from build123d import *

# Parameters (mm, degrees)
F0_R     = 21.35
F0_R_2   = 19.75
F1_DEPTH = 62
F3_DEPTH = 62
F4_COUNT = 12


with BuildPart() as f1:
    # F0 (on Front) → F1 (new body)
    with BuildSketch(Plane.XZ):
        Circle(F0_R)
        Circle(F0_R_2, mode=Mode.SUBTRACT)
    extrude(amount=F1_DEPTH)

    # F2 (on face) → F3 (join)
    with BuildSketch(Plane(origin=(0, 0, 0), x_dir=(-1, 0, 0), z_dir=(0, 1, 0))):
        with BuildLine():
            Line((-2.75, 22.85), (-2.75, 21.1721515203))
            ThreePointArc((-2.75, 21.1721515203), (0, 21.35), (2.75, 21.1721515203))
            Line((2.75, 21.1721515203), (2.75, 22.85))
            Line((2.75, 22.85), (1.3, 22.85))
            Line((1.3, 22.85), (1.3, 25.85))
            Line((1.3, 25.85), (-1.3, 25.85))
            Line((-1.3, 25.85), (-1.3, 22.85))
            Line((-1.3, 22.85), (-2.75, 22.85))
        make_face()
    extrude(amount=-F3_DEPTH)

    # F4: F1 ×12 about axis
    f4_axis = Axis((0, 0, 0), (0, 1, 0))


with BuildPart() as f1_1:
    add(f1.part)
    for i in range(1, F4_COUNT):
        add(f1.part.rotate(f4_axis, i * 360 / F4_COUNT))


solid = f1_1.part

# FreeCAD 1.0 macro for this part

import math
import FreeCAD as App
import Part
import Sketcher
from FreeCAD import Vector

doc = App.newDocument("Part")
body = doc.addObject("PartDesign::Body", "Body")

sketch1 = body.newObject("Sketcher::SketchObject", "Sketch")
sketch1.AttachmentSupport = (doc.getObject("XZ_Plane"), [""])
sketch1.MapMode = "FlatFace"
sketch1.addGeometry([
    Part.Circle(Vector(0, 0, 0), Vector(0, 0, 1), 21),
    Part.Circle(Vector(0, 0, 0), Vector(0, 0, 1), 20),
], False)
sketch1.addConstraint([
    Sketcher.Constraint("Coincident", 0, 3, -1, 1),
    Sketcher.Constraint("Coincident", 1, 3, -1, 1),
    Sketcher.Constraint("Diameter", 0, 42.7),
    Sketcher.Constraint("Diameter", 1, 39.5),
])
pad1 = body.newObject("PartDesign::Pad", "Pad")
pad1.Profile = sketch1
pad1.Length = 62

sketch2 = body.newObject("Sketcher::SketchObject", "Sketch001")
sketch2.AttachmentSupport = (doc.getObject("XZ_Plane"), [""])
sketch2.MapMode = "FlatFace"
sketch2.addGeometry([
    Part.LineSegment(Vector(2.8, 22.9, 0), Vector(2.8, 21.2, 0)),
    Part.ArcOfCircle(Part.Circle(Vector(0, 0, 0), Vector(0, 0, 1), 21.3), math.radians(82.6), math.radians(97.4)),
    Part.LineSegment(Vector(-2.8, 21.2, 0), Vector(-2.8, 22.9, 0)),
    Part.LineSegment(Vector(-2.8, 22.9, 0), Vector(-1.3, 22.9, 0)),
    Part.LineSegment(Vector(-1.3, 22.9, 0), Vector(-1.3, 25.9, 0)),
    Part.LineSegment(Vector(-1.3, 25.9, 0), Vector(1.3, 25.9, 0)),
    Part.LineSegment(Vector(1.3, 25.9, 0), Vector(1.3, 22.9, 0)),
    Part.LineSegment(Vector(1.3, 22.9, 0), Vector(2.8, 22.9, 0)),
], False)
sketch2.addConstraint([
    Sketcher.Constraint("Coincident", 0, 2, 1, 1),
    Sketcher.Constraint("Coincident", 1, 2, 2, 1),
    Sketcher.Constraint("Coincident", 2, 2, 3, 1),
    Sketcher.Constraint("Coincident", 3, 2, 4, 1),
    Sketcher.Constraint("Coincident", 4, 2, 5, 1),
    Sketcher.Constraint("Coincident", 5, 2, 6, 1),
    Sketcher.Constraint("Coincident", 6, 2, 7, 1),
    Sketcher.Constraint("Coincident", 7, 2, 0, 1),
    Sketcher.Constraint("Vertical", 0),
    Sketcher.Constraint("Vertical", 2),
    Sketcher.Constraint("Horizontal", 3),
    Sketcher.Constraint("Vertical", 4),
    Sketcher.Constraint("Horizontal", 5),
    Sketcher.Constraint("Vertical", 6),
    Sketcher.Constraint("Horizontal", 7),
    Sketcher.Constraint("Coincident", 1, 3, -1, 1),
    Sketcher.Constraint("Symmetric", 3, 2, 6, 2, -2),
    Sketcher.Constraint("Horizontal", 0, 2, 1, 2),
    Sketcher.Constraint("DistanceY", 4, 1, 4, 2, 3.0),
    Sketcher.Constraint("Radius", 1, 21.35),
    Sketcher.Constraint("DistanceX", 5, 1, 5, 2, 2.6),
    Sketcher.Constraint("DistanceX", 3, 1, 3, 2, 1.45),
    Sketcher.Constraint("DistanceY", -1, 1, 2, 2, 22.85),
])
pad2 = body.newObject("PartDesign::Pad", "Pad001")
pad2.Profile = sketch2
pad2.Length = 62
body2 = doc.addObject("PartDesign::Body", "Body001")
doc.recompute()

body2.BaseFeature = body
doc.recompute()

body3 = doc.addObject("PartDesign::Body", "Body002")
body3.BaseFeature = body
body3.Placement = App.Placement(Vector(0, 0, 0), App.Rotation(Vector(0, 1, 0), 30))
boolean = body2.newObject("PartDesign::Boolean", "Boolean")
boolean.Type = "Fuse"
boolean.addObjects([body3])
doc.recompute()

body4 = doc.addObject("PartDesign::Body", "Body003")
body4.BaseFeature = body
body4.Placement = App.Placement(Vector(0, 0, 0), App.Rotation(Vector(0, 1, 0), 60))
boolean2 = body2.newObject("PartDesign::Boolean", "Boolean001")
boolean2.Type = "Fuse"
boolean2.addObjects([body4])
doc.recompute()

body5 = doc.addObject("PartDesign::Body", "Body004")
body5.BaseFeature = body
body5.Placement = App.Placement(Vector(0, 0, 0), App.Rotation(Vector(0, 1, 0), 90))
boolean3 = body2.newObject("PartDesign::Boolean", "Boolean002")
boolean3.Type = "Fuse"
boolean3.addObjects([body5])
doc.recompute()

body6 = doc.addObject("PartDesign::Body", "Body005")
body6.BaseFeature = body
body6.Placement = App.Placement(Vector(0, 0, 0), App.Rotation(Vector(0, 1, 0), 120))
boolean4 = body2.newObject("PartDesign::Boolean", "Boolean003")
boolean4.Type = "Fuse"
boolean4.addObjects([body6])
doc.recompute()

body7 = doc.addObject("PartDesign::Body", "Body006")
body7.BaseFeature = body
body7.Placement = App.Placement(Vector(0, 0, 0), App.Rotation(Vector(0, 1, 0), 150))
boolean5 = body2.newObject("PartDesign::Boolean", "Boolean004")
boolean5.Type = "Fuse"
boolean5.addObjects([body7])
doc.recompute()

body8 = doc.addObject("PartDesign::Body", "Body007")
body8.BaseFeature = body
body8.Placement = App.Placement(Vector(0, 0, 0), App.Rotation(Vector(0, 1, 0), 180))
boolean6 = body2.newObject("PartDesign::Boolean", "Boolean005")
boolean6.Type = "Fuse"
boolean6.addObjects([body8])
doc.recompute()

body9 = doc.addObject("PartDesign::Body", "Body008")
body9.BaseFeature = body
body9.Placement = App.Placement(Vector(0, 0, 0), App.Rotation(Vector(0, 1, 0), 210))
boolean7 = body2.newObject("PartDesign::Boolean", "Boolean006")
boolean7.Type = "Fuse"
boolean7.addObjects([body9])
doc.recompute()

body10 = doc.addObject("PartDesign::Body", "Body009")
body10.BaseFeature = body
body10.Placement = App.Placement(Vector(0, 0, 0), App.Rotation(Vector(0, 1, 0), 240))
boolean8 = body2.newObject("PartDesign::Boolean", "Boolean007")
boolean8.Type = "Fuse"
boolean8.addObjects([body10])
doc.recompute()

body11 = doc.addObject("PartDesign::Body", "Body010")
body11.BaseFeature = body
body11.Placement = App.Placement(Vector(0, 0, 0), App.Rotation(Vector(0, 1, 0), 270))
boolean9 = body2.newObject("PartDesign::Boolean", "Boolean008")
boolean9.Type = "Fuse"
boolean9.addObjects([body11])
doc.recompute()

body12 = doc.addObject("PartDesign::Body", "Body011")
body12.BaseFeature = body
body12.Placement = App.Placement(Vector(0, 0, 0), App.Rotation(Vector(0, 1, 0), 300))
boolean10 = body2.newObject("PartDesign::Boolean", "Boolean009")
boolean10.Type = "Fuse"
boolean10.addObjects([body12])
doc.recompute()

body.Placement = App.Placement(Vector(0, 0, 0), App.Rotation(Vector(0, 1, 0), 330))
boolean11 = body2.newObject("PartDesign::Boolean", "Boolean010")
boolean11.Type = "Fuse"
boolean11.addObjects([body])

doc.recompute()
